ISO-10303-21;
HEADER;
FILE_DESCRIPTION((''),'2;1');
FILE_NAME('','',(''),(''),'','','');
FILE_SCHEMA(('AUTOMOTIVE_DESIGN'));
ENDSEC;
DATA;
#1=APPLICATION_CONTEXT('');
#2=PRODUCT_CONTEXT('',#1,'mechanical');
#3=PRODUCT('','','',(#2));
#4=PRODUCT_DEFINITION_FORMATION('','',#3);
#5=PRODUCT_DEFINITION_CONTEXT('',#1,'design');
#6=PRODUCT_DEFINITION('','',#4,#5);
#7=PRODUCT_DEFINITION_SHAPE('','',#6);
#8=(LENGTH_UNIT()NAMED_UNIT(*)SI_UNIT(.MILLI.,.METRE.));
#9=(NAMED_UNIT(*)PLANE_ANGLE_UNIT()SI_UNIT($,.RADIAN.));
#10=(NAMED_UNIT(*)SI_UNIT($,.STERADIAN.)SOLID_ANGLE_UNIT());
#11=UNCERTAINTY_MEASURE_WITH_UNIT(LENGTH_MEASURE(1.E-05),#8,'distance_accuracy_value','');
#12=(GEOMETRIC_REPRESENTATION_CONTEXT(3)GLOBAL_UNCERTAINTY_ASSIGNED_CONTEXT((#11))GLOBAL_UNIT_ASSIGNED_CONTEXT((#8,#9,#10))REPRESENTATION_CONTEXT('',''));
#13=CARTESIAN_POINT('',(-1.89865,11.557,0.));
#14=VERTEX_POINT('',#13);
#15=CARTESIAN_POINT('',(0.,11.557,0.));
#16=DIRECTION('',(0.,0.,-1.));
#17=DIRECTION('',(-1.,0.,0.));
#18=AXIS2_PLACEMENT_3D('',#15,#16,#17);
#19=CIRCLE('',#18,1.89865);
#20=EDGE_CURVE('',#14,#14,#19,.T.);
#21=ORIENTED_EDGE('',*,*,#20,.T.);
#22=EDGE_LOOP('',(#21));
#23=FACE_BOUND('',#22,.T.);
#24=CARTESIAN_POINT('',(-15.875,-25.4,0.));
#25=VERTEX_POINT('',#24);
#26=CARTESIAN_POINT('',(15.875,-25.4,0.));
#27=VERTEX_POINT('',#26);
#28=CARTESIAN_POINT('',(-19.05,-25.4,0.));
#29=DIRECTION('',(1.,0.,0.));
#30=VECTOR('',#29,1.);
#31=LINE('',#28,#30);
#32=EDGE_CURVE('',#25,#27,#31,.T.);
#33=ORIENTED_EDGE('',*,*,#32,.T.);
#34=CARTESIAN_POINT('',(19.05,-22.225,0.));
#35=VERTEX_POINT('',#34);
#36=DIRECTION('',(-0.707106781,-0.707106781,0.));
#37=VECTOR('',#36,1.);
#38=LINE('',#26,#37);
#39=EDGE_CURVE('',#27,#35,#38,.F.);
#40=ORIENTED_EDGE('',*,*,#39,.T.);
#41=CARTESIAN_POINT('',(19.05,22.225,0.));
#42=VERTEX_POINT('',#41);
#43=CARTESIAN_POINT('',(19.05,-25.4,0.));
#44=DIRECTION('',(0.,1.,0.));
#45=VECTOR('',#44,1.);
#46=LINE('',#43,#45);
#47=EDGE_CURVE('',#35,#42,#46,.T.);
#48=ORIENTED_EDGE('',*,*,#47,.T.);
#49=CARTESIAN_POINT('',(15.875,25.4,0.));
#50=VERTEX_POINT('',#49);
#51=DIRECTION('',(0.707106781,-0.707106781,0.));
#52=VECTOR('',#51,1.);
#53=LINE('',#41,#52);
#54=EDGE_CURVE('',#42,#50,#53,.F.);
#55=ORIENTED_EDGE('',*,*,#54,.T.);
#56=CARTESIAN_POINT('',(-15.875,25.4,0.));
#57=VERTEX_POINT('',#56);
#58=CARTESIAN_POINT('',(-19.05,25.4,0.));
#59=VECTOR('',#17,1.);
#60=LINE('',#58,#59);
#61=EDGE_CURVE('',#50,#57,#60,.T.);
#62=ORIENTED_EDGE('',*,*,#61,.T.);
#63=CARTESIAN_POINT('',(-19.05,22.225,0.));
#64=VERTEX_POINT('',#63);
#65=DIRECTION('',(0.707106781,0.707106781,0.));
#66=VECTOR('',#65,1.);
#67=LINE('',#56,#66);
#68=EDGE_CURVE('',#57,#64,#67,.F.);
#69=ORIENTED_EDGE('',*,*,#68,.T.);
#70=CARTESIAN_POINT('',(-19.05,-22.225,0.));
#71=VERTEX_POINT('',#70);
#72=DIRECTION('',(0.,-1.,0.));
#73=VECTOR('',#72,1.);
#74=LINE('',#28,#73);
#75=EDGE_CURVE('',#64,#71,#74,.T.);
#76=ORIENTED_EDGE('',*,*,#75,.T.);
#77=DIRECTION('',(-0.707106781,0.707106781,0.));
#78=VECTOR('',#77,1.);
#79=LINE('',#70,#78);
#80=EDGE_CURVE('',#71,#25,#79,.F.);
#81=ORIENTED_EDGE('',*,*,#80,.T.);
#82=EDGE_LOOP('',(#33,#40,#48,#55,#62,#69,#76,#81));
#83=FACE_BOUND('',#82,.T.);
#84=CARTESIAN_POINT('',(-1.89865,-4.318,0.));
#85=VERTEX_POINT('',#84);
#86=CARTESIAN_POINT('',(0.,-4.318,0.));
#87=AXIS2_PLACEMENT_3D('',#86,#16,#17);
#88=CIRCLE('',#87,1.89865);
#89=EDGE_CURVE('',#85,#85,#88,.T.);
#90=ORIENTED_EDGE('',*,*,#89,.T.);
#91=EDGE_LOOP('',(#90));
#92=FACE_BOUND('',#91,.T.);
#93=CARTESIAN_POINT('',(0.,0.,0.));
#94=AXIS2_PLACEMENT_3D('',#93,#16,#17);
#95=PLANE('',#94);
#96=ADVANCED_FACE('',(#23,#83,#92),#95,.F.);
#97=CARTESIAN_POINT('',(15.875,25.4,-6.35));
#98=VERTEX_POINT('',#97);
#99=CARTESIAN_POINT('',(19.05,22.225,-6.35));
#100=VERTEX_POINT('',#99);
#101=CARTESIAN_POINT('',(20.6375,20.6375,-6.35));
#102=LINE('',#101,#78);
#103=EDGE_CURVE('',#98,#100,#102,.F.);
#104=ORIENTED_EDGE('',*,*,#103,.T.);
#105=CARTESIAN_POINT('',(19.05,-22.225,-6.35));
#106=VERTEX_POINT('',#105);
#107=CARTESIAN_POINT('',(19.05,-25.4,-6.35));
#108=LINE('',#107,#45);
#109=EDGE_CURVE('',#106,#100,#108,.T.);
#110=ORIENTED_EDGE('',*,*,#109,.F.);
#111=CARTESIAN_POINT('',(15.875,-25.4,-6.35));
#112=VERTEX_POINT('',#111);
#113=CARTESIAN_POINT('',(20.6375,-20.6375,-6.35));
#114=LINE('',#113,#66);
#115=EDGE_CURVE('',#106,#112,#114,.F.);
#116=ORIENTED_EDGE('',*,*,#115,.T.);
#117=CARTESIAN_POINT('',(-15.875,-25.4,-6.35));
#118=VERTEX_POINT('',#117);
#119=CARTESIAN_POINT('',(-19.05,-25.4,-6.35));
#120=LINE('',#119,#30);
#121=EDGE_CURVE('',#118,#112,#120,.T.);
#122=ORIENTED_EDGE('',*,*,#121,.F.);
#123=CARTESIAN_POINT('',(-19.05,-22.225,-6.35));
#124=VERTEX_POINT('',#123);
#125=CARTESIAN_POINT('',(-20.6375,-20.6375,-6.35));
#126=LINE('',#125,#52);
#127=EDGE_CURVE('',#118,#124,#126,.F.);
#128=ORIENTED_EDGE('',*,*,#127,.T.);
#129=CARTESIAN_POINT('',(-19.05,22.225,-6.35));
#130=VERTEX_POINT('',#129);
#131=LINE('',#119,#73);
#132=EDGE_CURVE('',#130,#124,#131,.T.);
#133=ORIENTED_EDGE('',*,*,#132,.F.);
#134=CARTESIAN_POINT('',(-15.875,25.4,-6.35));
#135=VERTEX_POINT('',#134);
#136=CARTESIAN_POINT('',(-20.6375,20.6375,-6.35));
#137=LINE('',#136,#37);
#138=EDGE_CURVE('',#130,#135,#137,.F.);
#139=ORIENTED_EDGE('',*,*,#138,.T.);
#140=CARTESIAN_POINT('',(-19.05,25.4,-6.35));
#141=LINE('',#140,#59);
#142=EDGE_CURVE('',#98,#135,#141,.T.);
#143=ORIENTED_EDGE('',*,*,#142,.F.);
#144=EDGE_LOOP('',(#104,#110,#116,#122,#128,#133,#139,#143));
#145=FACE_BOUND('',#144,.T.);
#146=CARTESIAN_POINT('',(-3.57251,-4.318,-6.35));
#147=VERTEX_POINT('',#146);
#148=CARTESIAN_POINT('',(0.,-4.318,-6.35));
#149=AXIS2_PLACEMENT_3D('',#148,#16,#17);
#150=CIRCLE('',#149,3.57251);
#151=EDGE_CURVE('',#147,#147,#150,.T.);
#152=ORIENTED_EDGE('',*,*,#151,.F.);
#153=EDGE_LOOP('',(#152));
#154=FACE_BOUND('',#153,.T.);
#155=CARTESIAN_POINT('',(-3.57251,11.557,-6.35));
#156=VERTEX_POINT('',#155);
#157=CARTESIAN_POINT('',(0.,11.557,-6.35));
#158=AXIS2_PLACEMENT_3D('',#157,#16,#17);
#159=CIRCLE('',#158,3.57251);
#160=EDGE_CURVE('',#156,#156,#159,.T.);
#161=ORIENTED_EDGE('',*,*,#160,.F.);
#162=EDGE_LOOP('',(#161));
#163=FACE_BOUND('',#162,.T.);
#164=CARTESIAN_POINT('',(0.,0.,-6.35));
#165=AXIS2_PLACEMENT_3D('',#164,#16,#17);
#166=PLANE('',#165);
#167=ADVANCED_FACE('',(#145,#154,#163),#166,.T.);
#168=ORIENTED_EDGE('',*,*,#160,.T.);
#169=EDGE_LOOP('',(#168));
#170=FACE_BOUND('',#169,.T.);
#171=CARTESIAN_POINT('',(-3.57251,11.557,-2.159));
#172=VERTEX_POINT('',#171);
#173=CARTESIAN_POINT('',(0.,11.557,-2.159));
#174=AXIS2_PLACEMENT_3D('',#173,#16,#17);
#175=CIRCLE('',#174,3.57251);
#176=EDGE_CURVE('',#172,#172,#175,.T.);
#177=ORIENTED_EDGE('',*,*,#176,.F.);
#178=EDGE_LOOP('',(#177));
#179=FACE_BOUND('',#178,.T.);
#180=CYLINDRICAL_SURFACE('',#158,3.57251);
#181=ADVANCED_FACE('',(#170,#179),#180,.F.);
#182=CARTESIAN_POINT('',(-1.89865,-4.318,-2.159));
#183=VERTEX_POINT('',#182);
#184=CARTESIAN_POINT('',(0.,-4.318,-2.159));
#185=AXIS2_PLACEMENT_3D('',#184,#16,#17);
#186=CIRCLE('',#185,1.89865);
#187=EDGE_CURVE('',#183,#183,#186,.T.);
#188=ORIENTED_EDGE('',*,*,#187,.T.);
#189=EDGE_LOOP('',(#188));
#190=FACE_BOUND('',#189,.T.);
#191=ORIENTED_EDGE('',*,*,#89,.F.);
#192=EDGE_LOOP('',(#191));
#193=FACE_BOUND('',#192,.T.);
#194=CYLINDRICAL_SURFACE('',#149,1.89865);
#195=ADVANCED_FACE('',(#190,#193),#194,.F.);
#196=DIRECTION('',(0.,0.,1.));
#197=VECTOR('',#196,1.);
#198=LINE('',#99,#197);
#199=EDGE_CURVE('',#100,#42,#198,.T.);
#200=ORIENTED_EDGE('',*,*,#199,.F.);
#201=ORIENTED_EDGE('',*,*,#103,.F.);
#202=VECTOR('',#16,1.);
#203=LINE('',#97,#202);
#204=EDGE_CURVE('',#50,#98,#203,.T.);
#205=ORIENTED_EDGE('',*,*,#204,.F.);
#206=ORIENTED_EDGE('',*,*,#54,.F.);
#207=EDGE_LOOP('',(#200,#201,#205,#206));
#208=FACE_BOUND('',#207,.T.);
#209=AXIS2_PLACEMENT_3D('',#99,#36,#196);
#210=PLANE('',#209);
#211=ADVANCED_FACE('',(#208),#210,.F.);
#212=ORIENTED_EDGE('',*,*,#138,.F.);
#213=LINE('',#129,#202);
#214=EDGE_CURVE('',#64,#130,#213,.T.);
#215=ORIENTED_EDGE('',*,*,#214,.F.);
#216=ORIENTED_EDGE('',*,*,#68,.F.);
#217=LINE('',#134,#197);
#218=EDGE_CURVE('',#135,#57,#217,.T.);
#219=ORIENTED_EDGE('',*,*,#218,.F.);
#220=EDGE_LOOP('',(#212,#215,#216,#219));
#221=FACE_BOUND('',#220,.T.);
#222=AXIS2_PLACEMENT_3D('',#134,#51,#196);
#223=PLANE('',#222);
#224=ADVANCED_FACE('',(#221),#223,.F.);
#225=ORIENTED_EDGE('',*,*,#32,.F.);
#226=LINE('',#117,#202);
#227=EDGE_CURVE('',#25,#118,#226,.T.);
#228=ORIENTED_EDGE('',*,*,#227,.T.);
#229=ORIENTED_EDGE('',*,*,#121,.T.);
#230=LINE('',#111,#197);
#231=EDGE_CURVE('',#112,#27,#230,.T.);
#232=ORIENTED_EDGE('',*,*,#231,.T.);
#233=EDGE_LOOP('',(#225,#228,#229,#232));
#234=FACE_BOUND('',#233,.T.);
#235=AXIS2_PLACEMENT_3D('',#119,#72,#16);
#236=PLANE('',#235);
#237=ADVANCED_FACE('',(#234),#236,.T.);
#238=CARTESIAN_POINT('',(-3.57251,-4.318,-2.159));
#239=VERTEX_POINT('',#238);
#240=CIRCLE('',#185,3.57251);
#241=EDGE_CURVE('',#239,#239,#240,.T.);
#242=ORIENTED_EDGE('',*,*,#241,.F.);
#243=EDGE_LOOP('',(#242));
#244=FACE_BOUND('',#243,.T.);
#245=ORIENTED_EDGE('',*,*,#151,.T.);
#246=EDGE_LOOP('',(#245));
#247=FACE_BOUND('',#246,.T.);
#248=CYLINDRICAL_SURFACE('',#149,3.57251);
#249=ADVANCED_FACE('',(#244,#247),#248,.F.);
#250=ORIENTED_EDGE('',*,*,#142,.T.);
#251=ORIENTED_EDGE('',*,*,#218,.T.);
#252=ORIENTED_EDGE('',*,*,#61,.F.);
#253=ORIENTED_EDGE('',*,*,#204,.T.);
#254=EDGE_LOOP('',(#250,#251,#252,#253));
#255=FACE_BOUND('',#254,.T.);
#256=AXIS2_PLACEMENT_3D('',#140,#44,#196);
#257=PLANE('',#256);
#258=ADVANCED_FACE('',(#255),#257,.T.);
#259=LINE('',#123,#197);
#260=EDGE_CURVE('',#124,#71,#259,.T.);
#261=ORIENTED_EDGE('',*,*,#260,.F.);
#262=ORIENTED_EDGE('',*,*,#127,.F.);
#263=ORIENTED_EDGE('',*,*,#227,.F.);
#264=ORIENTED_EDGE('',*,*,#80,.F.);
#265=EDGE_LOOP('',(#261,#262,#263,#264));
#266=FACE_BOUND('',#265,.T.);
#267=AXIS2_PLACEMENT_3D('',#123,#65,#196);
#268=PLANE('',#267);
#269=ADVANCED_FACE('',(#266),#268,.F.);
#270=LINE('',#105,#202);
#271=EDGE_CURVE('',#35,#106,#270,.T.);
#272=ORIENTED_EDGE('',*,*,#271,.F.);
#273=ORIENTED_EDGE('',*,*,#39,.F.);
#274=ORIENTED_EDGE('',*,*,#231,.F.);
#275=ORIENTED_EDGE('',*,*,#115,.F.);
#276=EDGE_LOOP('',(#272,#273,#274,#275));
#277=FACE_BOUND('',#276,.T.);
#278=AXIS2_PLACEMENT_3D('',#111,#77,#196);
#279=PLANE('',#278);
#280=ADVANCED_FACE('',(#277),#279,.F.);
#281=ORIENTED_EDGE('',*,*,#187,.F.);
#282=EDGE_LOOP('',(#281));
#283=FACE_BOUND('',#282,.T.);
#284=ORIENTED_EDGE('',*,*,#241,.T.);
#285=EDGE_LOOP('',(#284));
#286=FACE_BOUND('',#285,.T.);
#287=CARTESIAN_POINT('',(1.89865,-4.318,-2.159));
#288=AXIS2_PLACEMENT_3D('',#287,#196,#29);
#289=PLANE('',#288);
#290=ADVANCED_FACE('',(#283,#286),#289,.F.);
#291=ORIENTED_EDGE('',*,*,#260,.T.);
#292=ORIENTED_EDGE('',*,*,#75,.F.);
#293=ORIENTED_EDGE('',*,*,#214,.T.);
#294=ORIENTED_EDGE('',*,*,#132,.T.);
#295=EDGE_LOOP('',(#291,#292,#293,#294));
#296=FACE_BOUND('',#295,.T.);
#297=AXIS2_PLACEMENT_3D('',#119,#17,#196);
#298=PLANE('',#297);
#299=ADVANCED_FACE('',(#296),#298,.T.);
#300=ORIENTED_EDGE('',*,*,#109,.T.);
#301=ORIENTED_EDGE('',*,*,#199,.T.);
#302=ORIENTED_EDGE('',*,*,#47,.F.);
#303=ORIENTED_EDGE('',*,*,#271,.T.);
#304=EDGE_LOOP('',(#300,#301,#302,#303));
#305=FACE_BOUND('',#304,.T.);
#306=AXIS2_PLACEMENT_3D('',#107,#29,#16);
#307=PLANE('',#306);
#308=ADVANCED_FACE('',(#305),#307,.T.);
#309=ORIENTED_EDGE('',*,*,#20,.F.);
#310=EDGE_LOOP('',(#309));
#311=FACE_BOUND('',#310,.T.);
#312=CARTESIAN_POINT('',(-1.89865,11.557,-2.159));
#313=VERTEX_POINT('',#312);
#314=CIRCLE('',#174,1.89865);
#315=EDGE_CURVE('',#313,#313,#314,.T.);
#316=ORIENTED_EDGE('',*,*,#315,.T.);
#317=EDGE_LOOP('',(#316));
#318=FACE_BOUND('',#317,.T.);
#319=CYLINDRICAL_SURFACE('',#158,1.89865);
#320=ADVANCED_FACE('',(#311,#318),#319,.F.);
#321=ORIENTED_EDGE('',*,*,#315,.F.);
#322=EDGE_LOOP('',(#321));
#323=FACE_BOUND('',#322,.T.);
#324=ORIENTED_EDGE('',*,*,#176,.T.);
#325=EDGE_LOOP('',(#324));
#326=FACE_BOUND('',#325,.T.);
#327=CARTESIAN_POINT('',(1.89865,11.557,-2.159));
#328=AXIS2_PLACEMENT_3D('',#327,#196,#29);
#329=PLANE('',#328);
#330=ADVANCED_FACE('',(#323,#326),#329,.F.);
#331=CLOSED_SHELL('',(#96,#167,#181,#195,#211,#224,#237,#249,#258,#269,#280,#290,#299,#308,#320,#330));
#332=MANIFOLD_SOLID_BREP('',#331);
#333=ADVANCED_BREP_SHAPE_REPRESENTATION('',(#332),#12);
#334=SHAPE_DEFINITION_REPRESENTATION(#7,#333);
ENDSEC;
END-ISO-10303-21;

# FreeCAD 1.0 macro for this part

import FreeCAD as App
import Part
import Sketcher
Q = App.Units.Quantity


def edges_at(feature, points):
    """Names of the edges that pass closest to the given points."""
    edges = feature.Shape.Edges
    near = lambda p: min(range(len(edges)), key=lambda i: edges[i].distToShape(Part.Vertex(*p))[0])
    return sorted({f"Edge{near(p) + 1}" for p in points})

doc = App.newDocument("Part")
params = doc.addObject("Spreadsheet::Sheet", "Params")
for row, (alias, value) in enumerate([
    ("sketch1_height", "2 in"),
    ("sketch1_width", "1.5 in"),
    ("pad1_length", "0.25 in"),
    ("chamfer_size", "0.125 in"),
    ("hole_diameter", "0.1495 in"),
    ("hole_cbore_diameter", "0.2813 in"),
    ("hole_cbore_depth", "0.165 in"),
], start=1):
    params.set(f"A{row}", alias)
    params.set(f"B{row}", "=" + value)
    params.setAlias(f"B{row}", alias)

body = doc.addObject("PartDesign::Body", "Body")

# Sketch on XY plane
sketch1 = body.newObject("Sketcher::SketchObject", "Sketch")
sketch1.AttachmentSupport = (doc.getObject("XY_Plane"), [""])
sketch1.MapMode = "FlatFace"
sketch1.addGeometry(Part.LineSegment(App.Vector(-19, 25, 0), App.Vector(-19, -25, 0)), False)
sketch1.addGeometry(Part.LineSegment(App.Vector(-19, -25, 0), App.Vector(19, -25, 0)), False)
sketch1.addGeometry(Part.LineSegment(App.Vector(19, -25, 0), App.Vector(19, 25, 0)), False)
sketch1.addGeometry(Part.LineSegment(App.Vector(19, 25, 0), App.Vector(-19, 25, 0)), False)
sketch1.addConstraint(Sketcher.Constraint("Coincident", 0, 2, 1, 1))
sketch1.addConstraint(Sketcher.Constraint("Coincident", 1, 2, 2, 1))
sketch1.addConstraint(Sketcher.Constraint("Coincident", 2, 2, 3, 1))
sketch1.addConstraint(Sketcher.Constraint("Coincident", 3, 2, 0, 1))
sketch1.addConstraint(Sketcher.Constraint("Vertical", 0))
sketch1.addConstraint(Sketcher.Constraint("Horizontal", 1))
sketch1.addConstraint(Sketcher.Constraint("Vertical", 2))
sketch1.addConstraint(Sketcher.Constraint("Horizontal", 3))
sketch1.addConstraint(Sketcher.Constraint("Symmetric", 0, 2, 2, 2, -1, 1))
sketch1.addConstraint(Sketcher.Constraint("DistanceY", 0, 2, 0, 1, Q("2 in")))
sketch1.addConstraint(Sketcher.Constraint("DistanceX", 1, 1, 1, 2, Q("1.5 in")))
sketch1.setExpression("Constraints[9]", "Params.sketch1_height")
sketch1.setExpression("Constraints[10]", "Params.sketch1_width")
pad1 = body.newObject("PartDesign::Pad", "Pad")
pad1.Profile = sketch1
pad1.setExpression("Length", "Params.pad1_length")
pad1.Reversed = True
doc.recompute()

chamfer = body.newObject("PartDesign::Chamfer", "Chamfer")
chamfer.Base = (pad1, edges_at(pad1, [
    (19.05, -25.4, -3.175),
    (-19.05, -25.4, -3.175),
    (-19.05, 25.4, -3.175),
    (19.05, 25.4, -3.175),
]))
chamfer.setExpression("Size", "Params.chamfer_size")

# Sketch on XY plane
sketch2 = body.newObject("Sketcher::SketchObject", "Sketch001")
sketch2.AttachmentSupport = (doc.getObject("XY_Plane"), [""])
sketch2.MapMode = "FlatFace"
sketch2.AttachmentOffset = App.Placement(App.Vector(0, 0, -0.25 * 25.4), App.Rotation())
sketch2.addGeometry(Part.Circle(App.Vector(0, -4.3, 0), App.Vector(0, 0, 1), 1.9), False)
sketch2.addGeometry(Part.Circle(App.Vector(0, 11.6, 0), App.Vector(0, 0, 1), 1.9), False)
sketch2.addConstraint(Sketcher.Constraint("Equal", 0, 1))
sketch2.addConstraint(Sketcher.Constraint("PointOnObject", 0, 3, -2))
sketch2.addConstraint(Sketcher.Constraint("PointOnObject", 1, 3, -2))
sketch2.addConstraint(Sketcher.Constraint("Diameter", 0, Q("0.1495 in")))
sketch2.addConstraint(Sketcher.Constraint("DistanceY", 0, 3, -1, 1, Q("0.17 in")))
sketch2.addConstraint(Sketcher.Constraint("DistanceY", -1, 1, 1, 3, Q("0.455 in")))
doc.recompute()
hole = body.newObject("PartDesign::Hole", "Hole")
hole.Profile = sketch2
hole.ThreadType = "None"
hole.setExpression("Diameter", "Params.hole_diameter")
hole.DepthType = "ThroughAll"
hole.HoleCutType = "Counterbore"
hole.setExpression("HoleCutDiameter", "Params.hole_cbore_diameter")
hole.setExpression("HoleCutDepth", "Params.hole_cbore_depth")
hole.Reversed = True

doc.recompute()
